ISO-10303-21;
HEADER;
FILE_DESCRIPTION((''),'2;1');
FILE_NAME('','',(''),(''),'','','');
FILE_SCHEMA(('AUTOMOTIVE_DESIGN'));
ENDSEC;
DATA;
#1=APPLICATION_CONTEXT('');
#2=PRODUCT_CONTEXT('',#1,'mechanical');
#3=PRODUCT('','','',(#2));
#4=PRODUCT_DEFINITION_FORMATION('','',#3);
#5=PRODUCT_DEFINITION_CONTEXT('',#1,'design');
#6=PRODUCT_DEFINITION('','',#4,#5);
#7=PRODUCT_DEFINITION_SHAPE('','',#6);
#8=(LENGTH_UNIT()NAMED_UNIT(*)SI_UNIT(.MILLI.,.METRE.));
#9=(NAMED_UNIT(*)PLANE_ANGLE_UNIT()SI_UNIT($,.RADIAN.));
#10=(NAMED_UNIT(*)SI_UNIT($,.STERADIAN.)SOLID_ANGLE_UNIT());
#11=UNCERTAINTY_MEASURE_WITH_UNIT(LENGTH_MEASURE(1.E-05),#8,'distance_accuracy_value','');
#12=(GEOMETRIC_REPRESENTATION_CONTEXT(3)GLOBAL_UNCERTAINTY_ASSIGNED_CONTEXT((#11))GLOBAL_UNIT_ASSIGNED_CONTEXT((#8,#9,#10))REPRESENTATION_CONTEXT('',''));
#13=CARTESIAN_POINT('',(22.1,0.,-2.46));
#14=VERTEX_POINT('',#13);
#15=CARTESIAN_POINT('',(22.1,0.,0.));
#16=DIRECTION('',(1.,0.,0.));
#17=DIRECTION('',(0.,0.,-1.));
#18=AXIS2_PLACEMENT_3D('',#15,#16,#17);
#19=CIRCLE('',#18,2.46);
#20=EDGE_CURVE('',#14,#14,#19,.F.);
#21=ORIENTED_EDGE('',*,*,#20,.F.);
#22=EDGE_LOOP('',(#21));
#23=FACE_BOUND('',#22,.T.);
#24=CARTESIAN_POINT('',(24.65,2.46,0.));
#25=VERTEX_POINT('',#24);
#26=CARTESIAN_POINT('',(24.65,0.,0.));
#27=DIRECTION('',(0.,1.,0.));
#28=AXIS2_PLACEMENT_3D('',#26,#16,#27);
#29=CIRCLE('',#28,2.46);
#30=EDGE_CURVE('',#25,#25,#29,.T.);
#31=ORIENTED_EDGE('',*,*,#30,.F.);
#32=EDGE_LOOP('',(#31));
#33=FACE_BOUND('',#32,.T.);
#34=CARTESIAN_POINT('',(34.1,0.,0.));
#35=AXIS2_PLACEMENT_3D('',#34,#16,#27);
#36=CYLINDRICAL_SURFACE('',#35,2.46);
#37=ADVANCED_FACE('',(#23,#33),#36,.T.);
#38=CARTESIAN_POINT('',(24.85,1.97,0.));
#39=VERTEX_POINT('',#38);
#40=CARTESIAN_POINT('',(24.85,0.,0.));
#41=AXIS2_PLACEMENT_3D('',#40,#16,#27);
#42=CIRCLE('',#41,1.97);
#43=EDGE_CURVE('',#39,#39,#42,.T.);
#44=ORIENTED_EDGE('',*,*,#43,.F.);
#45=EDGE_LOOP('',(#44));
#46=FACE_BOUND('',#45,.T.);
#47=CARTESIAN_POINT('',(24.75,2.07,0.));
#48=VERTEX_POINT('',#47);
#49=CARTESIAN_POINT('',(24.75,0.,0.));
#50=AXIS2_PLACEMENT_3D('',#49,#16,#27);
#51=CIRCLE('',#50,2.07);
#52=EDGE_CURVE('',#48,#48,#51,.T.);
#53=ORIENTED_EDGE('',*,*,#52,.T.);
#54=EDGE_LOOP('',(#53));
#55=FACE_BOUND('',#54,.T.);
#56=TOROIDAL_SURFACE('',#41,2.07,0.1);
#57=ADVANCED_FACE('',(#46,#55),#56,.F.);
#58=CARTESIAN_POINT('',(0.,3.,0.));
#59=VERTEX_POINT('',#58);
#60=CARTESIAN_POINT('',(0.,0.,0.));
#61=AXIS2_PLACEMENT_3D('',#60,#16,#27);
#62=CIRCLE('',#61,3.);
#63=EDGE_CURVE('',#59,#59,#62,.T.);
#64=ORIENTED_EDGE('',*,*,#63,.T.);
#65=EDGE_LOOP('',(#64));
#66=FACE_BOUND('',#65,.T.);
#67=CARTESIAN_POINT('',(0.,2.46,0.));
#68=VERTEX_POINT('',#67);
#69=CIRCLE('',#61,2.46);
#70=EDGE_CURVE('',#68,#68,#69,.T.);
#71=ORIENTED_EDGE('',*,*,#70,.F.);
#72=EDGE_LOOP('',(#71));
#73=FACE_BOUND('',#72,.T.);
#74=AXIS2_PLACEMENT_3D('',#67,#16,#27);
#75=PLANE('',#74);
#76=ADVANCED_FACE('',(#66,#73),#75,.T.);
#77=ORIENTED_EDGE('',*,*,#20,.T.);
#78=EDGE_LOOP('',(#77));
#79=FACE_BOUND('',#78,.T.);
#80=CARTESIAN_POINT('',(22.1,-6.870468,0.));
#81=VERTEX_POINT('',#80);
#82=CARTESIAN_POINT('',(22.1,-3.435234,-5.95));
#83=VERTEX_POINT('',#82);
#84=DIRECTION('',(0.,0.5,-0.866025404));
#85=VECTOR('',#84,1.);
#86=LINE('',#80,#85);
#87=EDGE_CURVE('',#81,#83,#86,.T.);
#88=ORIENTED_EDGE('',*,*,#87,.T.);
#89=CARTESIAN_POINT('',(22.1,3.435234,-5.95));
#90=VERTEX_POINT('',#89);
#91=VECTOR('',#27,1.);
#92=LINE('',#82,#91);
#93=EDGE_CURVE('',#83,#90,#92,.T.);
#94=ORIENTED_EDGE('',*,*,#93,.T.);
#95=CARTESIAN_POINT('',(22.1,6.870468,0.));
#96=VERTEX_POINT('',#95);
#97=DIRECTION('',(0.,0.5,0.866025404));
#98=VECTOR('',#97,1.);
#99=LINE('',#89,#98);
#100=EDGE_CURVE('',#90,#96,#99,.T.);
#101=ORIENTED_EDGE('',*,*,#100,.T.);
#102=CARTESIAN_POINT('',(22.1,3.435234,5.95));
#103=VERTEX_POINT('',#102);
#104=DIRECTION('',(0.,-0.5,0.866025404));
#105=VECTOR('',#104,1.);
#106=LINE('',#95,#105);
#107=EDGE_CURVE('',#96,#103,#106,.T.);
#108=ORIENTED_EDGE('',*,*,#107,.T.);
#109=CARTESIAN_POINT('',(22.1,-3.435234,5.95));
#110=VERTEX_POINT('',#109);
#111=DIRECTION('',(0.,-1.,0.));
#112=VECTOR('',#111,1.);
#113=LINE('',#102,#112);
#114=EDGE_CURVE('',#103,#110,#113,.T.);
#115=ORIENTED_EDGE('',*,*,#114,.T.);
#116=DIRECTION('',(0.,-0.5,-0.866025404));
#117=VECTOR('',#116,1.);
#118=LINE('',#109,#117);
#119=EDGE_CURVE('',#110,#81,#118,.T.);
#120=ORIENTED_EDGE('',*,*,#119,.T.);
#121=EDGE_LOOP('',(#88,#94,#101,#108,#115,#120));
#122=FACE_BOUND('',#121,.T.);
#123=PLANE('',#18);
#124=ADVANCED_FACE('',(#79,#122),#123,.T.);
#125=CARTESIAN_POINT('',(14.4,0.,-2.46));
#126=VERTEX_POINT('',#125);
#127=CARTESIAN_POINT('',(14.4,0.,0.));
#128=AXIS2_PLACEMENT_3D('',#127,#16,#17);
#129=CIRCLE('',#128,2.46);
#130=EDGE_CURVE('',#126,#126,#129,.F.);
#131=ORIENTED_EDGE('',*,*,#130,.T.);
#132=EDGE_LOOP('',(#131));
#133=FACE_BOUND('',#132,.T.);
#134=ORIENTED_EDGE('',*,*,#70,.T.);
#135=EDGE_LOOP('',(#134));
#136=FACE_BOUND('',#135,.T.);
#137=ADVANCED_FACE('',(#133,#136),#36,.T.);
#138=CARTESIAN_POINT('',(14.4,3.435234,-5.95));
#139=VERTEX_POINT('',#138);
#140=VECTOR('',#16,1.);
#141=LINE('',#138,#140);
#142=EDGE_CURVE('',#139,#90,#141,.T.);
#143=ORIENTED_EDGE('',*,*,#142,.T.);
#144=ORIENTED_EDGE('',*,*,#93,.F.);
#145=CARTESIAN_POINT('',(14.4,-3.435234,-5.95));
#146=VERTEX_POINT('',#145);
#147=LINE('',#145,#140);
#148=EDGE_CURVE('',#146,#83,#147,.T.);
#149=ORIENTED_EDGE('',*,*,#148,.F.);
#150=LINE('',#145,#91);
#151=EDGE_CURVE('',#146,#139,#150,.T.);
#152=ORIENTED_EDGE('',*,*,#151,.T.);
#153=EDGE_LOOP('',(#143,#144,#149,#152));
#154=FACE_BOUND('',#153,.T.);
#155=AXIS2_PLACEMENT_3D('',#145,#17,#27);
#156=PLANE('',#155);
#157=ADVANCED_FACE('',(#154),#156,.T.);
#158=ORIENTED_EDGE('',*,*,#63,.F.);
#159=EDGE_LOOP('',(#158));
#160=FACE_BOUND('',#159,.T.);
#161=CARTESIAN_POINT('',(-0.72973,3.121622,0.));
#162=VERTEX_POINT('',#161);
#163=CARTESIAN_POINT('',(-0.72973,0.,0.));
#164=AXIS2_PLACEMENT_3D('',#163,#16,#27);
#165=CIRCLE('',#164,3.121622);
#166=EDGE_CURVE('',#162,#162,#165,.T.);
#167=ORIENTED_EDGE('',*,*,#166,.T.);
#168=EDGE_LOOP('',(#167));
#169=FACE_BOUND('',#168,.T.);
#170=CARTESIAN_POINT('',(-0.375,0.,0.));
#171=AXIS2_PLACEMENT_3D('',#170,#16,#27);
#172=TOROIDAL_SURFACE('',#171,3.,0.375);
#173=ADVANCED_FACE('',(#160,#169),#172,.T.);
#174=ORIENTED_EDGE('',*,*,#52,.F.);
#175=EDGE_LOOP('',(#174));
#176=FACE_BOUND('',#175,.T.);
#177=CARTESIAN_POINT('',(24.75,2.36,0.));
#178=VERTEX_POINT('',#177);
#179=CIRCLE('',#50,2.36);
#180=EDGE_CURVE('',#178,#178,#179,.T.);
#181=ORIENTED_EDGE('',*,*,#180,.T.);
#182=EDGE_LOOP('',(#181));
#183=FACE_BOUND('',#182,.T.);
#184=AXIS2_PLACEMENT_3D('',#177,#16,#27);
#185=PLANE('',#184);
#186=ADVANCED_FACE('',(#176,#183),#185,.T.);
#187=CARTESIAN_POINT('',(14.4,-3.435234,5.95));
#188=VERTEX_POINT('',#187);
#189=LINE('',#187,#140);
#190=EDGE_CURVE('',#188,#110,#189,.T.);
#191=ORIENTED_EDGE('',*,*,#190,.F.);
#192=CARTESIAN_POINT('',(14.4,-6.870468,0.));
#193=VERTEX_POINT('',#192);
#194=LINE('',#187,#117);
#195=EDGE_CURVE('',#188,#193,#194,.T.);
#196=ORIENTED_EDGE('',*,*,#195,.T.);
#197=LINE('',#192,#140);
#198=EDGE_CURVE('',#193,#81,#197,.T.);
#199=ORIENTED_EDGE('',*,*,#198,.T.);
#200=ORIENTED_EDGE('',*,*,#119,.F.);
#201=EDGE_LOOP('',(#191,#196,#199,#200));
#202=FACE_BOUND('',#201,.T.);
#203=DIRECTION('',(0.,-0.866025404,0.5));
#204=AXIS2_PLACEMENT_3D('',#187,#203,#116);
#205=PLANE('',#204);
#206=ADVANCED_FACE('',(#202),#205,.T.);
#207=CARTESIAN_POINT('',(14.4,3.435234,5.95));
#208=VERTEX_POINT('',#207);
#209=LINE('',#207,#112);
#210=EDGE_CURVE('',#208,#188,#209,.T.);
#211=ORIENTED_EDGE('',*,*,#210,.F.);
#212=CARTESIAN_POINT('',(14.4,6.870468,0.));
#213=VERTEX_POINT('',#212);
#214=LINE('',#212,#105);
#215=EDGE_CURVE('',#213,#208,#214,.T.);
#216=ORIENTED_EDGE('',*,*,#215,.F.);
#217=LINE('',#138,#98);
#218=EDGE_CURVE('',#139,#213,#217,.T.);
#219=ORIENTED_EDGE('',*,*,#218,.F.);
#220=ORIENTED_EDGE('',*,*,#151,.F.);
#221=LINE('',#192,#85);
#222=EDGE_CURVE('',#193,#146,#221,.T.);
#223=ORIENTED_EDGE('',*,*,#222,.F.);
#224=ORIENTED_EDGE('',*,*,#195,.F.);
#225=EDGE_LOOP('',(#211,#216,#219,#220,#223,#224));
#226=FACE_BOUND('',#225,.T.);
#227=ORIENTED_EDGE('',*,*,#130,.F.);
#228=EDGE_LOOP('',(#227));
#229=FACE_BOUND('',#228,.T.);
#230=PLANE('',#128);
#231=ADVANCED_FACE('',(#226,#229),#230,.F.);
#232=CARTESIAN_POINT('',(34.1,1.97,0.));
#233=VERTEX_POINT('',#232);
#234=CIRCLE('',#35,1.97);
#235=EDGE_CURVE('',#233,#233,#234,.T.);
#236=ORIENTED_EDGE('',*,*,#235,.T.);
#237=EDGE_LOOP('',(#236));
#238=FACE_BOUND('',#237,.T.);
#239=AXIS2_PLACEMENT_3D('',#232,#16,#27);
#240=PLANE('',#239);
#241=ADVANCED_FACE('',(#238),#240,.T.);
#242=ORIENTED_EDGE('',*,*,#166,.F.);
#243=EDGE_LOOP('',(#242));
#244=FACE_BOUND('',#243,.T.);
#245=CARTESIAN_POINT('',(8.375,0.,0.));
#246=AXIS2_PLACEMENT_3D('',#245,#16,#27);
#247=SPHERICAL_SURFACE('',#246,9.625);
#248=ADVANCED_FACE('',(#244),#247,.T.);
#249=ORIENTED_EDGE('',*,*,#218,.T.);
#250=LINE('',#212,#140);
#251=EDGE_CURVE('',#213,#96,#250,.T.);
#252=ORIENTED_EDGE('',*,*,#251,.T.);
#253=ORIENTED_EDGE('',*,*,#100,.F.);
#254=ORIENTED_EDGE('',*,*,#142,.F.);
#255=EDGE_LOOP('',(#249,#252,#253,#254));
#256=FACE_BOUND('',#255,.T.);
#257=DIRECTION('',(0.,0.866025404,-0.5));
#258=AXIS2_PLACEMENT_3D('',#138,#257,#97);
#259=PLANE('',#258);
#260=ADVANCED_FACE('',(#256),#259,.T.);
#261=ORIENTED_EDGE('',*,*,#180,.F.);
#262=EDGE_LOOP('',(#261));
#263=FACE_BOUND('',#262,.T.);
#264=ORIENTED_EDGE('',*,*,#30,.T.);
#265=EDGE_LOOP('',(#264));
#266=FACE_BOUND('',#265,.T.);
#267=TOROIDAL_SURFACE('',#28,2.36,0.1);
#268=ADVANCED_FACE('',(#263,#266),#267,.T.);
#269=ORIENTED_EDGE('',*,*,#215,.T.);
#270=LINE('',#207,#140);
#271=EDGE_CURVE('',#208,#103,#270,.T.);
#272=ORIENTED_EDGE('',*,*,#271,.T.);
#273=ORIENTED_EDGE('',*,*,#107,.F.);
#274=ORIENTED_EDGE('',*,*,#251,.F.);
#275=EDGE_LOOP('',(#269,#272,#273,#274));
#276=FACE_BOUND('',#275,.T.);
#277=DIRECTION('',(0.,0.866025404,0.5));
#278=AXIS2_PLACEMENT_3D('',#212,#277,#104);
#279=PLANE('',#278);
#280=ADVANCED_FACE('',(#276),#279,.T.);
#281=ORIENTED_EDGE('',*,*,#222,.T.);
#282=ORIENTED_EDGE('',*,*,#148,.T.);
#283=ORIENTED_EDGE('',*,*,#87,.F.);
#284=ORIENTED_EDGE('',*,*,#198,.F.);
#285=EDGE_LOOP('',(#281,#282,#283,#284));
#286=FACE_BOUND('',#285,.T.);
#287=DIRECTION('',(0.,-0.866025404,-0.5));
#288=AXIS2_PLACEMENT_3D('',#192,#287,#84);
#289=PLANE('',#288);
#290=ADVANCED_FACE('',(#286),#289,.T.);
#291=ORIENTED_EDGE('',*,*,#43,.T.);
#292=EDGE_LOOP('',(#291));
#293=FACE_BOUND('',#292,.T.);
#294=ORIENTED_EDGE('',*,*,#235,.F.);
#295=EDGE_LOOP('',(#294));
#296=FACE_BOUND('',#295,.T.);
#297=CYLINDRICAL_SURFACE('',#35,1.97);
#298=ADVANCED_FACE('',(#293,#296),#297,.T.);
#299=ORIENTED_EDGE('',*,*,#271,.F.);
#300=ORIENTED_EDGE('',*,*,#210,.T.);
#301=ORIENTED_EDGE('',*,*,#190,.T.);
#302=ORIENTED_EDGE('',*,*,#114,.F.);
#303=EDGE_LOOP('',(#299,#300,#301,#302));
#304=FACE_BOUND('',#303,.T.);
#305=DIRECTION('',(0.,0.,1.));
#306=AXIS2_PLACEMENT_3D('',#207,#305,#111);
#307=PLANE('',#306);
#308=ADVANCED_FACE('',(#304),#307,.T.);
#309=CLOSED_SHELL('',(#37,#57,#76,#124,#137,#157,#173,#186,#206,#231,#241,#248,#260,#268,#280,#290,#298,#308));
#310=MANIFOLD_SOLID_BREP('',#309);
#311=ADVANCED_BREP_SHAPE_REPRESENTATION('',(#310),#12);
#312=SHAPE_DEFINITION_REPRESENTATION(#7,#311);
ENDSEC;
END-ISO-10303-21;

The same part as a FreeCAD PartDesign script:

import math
import FreeCAD as App
import Part
import Sketcher
from FreeCAD import Vector
Q = App.Units.Quantity

doc = App.newDocument("Part")
body = doc.addObject("PartDesign::Body", "Body")

# Sketch on XY plane
sketch1 = body.newObject("Sketcher::SketchObject", "Sketch")
sketch1.AttachmentSupport = (doc.getObject("XY_Plane"), [""])
sketch1.MapMode = "FlatFace"
sketch1.addGeometry(Part.LineSegment(Vector(0, 2.46, 0), Vector(0, 3, 0)), False)
sketch1.addGeometry(Part.ArcOfCircle(Part.Circle(Vector(-0.375, 3, 0), Vector(0, 0, 1), 0.375), math.radians(0), math.radians(161.075355)), False)
sketch1.addGeometry(Part.ArcOfCircle(Part.Circle(Vector(8.375, 0, 0), Vector(0, 0, 1), 9.625), math.radians(161.075356), math.radians(180)), False)
sketch1.addGeometry(Part.LineSegment(Vector(-1.25, 0, 0), Vector(34.1, 0, 0)), False)
sketch1.addGeometry(Part.LineSegment(Vector(34.1, 0, 0), Vector(34.1, 1.97, 0)), False)
sketch1.addGeometry(Part.LineSegment(Vector(34.1, 1.97, 0), Vector(24.85, 1.97, 0)), False)
sketch1.addGeometry(Part.ArcOfCircle(Part.Circle(Vector(24.85, 2.07, 0), Vector(0, 0, 1), 0.1), math.radians(180), math.radians(270)), False)
sketch1.addGeometry(Part.LineSegment(Vector(24.75, 2.07, 0), Vector(24.75, 2.36, 0)), False)
sketch1.addGeometry(Part.ArcOfCircle(Part.Circle(Vector(24.65, 2.36, 0), Vector(0, 0, 1), 0.1), math.radians(0), math.radians(90)), False)
sketch1.addGeometry(Part.LineSegment(Vector(24.65, 2.46, 0), Vector(0, 2.46, 0)), False)
sketch1.addConstraint(Sketcher.Constraint("Tangent", 0, 2, 1, 1))
sketch1.addConstraint(Sketcher.Constraint("Tangent", 1, 2, 2, 1))
sketch1.addConstraint(Sketcher.Constraint("Coincident", 2, 2, 3, 1))
sketch1.addConstraint(Sketcher.Constraint("Coincident", 3, 2, 4, 1))
sketch1.addConstraint(Sketcher.Constraint("Coincident", 4, 2, 5, 1))
sketch1.addConstraint(Sketcher.Constraint("Tangent", 5, 2, 6, 2))
sketch1.addConstraint(Sketcher.Constraint("Tangent", 6, 1, 7, 1))
sketch1.addConstraint(Sketcher.Constraint("Tangent", 7, 2, 8, 1))
sketch1.addConstraint(Sketcher.Constraint("Tangent", 8, 2, 9, 1))
sketch1.addConstraint(Sketcher.Constraint("Coincident", 9, 2, 0, 1))
sketch1.addConstraint(Sketcher.Constraint("Vertical", 0))
sketch1.addConstraint(Sketcher.Constraint("Horizontal", 3))
sketch1.addConstraint(Sketcher.Constraint("Vertical", 4))
sketch1.addConstraint(Sketcher.Constraint("Horizontal", 5))
sketch1.addConstraint(Sketcher.Constraint("Vertical", 7))
sketch1.addConstraint(Sketcher.Constraint("Horizontal", 9))
sketch1.addConstraint(Sketcher.Constraint("Equal", 6, 8))
sketch1.addConstraint(Sketcher.Constraint("PointOnObject", 2, 3, -1))
sketch1.addConstraint(Sketcher.Constraint("PointOnObject", 0, 2, -2))
sketch1.addConstraint(Sketcher.Constraint("PointOnObject", 2, 2, -1))
sketch1.addConstraint(Sketcher.Constraint("Radius", 6, 0.1))
sketch1.addConstraint(Sketcher.Constraint("DistanceY", -1, 1, 1, 3, 3.0))
sketch1.addConstraint(Sketcher.Constraint("Radius", 1, 0.375))
sketch1.addConstraint(Sketcher.Constraint("Radius", 2, 9.625))
sketch1.addConstraint(Sketcher.Constraint("DistanceX", 3, 1, 3, 2, 35.35))
sketch1.addConstraint(Sketcher.Constraint("DistanceX", 5, 2, 5, 1, 9.25))
sketch1.addConstraint(Sketcher.Constraint("DistanceY", 0, 1, 0, 2, 0.54))
sketch1.addConstraint(Sketcher.Constraint("DistanceY", 4, 1, 4, 2, 1.97))
revolution = body.newObject("PartDesign::Revolution", "Revolution")
revolution.Profile = sketch1
revolution.ReferenceAxis = (sketch1, ["H_Axis"])
revolution.Angle = 360

# Sketch on YZ plane
sketch2 = body.newObject("Sketcher::SketchObject", "Sketch001")
sketch2.AttachmentSupport = (doc.getObject("YZ_Plane"), [""])
sketch2.MapMode = "FlatFace"
sketch2.AttachmentOffset = App.Placement(Vector(0, 0, 22.1), App.Rotation())
sketch2.addGeometry(Part.LineSegment(Vector(3.435234, 5.95, 0), Vector(-3.435234, 5.95, 0)), False)
sketch2.addGeometry(Part.LineSegment(Vector(-3.435234, 5.95, 0), Vector(-6.870468, 0, 0)), False)
sketch2.addGeometry(Part.LineSegment(Vector(-6.870468, 0, 0), Vector(-3.435234, -5.95, 0)), False)
sketch2.addGeometry(Part.LineSegment(Vector(-3.435234, -5.95, 0), Vector(3.435234, -5.95, 0)), False)
sketch2.addGeometry(Part.LineSegment(Vector(3.435234, -5.95, 0), Vector(6.870468, 0, 0)), False)
sketch2.addGeometry(Part.LineSegment(Vector(6.870468, 0, 0), Vector(3.435234, 5.95, 0)), False)
sketch2.addConstraint(Sketcher.Constraint("Coincident", 0, 2, 1, 1))
sketch2.addConstraint(Sketcher.Constraint("Coincident", 1, 2, 2, 1))
sketch2.addConstraint(Sketcher.Constraint("Coincident", 2, 2, 3, 1))
sketch2.addConstraint(Sketcher.Constraint("Coincident", 3, 2, 4, 1))
sketch2.addConstraint(Sketcher.Constraint("Coincident", 4, 2, 5, 1))
sketch2.addConstraint(Sketcher.Constraint("Coincident", 5, 2, 0, 1))
sketch2.addConstraint(Sketcher.Constraint("Horizontal", 0))
sketch2.addConstraint(Sketcher.Constraint("Horizontal", 3))
sketch2.addConstraint(Sketcher.Constraint("Symmetric", 0, 2, 3, 2, -1, 1))
sketch2.addConstraint(Sketcher.Constraint("Symmetric", 1, 2, 4, 2, -1, 1))
sketch2.addConstraint(Sketcher.Constraint("PointOnObject", 1, 2, -1))
sketch2.addConstraint(Sketcher.Constraint("Parallel", 2, 5))
sketch2.addConstraint(Sketcher.Constraint("Vertical", 0, 2, 2, 2))
sketch2.addConstraint(Sketcher.Constraint("Angle", 1, Q("-120 deg")))
sketch2.addConstraint(Sketcher.Constraint("DistanceY", 2, 2, 0, 2, 11.9))
sketch2.addConstraint(Sketcher.Constraint("DistanceX", 0, 2, 0, 1, 6.870468))
pad1 = body.newObject("PartDesign::Pad", "Pad")
pad1.Profile = sketch2
pad1.Length = 7.7
pad1.Reversed = True

doc.recompute()
